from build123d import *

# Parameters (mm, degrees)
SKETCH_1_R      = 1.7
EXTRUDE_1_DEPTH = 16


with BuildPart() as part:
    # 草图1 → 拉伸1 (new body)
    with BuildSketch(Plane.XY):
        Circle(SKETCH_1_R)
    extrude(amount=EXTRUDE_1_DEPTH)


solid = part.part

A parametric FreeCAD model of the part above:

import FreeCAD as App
import Part
import Sketcher
from FreeCAD import Vector

doc = App.newDocument("Part")
body = doc.addObject("PartDesign::Body", "Body")

# Sketch on XY plane
sketch1 = body.newObject("Sketcher::SketchObject", "Sketch")
sketch1.AttachmentSupport = (doc.getObject("XY_Plane"), [""])
sketch1.MapMode = "FlatFace"
sketch1.addGeometry(Part.Circle(Vector(0, 0, 0), Vector(0, 0, 1), 1.7), False)
sketch1.addConstraint([
    Sketcher.Constraint("Coincident", 0, 3, -1, 1),
    Sketcher.Constraint("Diameter", 0, 3.4),
])
pad1 = body.newObject("PartDesign::Pad", "Pad")
pad1.Profile = sketch1
pad1.Length = 16

doc.recompute()
